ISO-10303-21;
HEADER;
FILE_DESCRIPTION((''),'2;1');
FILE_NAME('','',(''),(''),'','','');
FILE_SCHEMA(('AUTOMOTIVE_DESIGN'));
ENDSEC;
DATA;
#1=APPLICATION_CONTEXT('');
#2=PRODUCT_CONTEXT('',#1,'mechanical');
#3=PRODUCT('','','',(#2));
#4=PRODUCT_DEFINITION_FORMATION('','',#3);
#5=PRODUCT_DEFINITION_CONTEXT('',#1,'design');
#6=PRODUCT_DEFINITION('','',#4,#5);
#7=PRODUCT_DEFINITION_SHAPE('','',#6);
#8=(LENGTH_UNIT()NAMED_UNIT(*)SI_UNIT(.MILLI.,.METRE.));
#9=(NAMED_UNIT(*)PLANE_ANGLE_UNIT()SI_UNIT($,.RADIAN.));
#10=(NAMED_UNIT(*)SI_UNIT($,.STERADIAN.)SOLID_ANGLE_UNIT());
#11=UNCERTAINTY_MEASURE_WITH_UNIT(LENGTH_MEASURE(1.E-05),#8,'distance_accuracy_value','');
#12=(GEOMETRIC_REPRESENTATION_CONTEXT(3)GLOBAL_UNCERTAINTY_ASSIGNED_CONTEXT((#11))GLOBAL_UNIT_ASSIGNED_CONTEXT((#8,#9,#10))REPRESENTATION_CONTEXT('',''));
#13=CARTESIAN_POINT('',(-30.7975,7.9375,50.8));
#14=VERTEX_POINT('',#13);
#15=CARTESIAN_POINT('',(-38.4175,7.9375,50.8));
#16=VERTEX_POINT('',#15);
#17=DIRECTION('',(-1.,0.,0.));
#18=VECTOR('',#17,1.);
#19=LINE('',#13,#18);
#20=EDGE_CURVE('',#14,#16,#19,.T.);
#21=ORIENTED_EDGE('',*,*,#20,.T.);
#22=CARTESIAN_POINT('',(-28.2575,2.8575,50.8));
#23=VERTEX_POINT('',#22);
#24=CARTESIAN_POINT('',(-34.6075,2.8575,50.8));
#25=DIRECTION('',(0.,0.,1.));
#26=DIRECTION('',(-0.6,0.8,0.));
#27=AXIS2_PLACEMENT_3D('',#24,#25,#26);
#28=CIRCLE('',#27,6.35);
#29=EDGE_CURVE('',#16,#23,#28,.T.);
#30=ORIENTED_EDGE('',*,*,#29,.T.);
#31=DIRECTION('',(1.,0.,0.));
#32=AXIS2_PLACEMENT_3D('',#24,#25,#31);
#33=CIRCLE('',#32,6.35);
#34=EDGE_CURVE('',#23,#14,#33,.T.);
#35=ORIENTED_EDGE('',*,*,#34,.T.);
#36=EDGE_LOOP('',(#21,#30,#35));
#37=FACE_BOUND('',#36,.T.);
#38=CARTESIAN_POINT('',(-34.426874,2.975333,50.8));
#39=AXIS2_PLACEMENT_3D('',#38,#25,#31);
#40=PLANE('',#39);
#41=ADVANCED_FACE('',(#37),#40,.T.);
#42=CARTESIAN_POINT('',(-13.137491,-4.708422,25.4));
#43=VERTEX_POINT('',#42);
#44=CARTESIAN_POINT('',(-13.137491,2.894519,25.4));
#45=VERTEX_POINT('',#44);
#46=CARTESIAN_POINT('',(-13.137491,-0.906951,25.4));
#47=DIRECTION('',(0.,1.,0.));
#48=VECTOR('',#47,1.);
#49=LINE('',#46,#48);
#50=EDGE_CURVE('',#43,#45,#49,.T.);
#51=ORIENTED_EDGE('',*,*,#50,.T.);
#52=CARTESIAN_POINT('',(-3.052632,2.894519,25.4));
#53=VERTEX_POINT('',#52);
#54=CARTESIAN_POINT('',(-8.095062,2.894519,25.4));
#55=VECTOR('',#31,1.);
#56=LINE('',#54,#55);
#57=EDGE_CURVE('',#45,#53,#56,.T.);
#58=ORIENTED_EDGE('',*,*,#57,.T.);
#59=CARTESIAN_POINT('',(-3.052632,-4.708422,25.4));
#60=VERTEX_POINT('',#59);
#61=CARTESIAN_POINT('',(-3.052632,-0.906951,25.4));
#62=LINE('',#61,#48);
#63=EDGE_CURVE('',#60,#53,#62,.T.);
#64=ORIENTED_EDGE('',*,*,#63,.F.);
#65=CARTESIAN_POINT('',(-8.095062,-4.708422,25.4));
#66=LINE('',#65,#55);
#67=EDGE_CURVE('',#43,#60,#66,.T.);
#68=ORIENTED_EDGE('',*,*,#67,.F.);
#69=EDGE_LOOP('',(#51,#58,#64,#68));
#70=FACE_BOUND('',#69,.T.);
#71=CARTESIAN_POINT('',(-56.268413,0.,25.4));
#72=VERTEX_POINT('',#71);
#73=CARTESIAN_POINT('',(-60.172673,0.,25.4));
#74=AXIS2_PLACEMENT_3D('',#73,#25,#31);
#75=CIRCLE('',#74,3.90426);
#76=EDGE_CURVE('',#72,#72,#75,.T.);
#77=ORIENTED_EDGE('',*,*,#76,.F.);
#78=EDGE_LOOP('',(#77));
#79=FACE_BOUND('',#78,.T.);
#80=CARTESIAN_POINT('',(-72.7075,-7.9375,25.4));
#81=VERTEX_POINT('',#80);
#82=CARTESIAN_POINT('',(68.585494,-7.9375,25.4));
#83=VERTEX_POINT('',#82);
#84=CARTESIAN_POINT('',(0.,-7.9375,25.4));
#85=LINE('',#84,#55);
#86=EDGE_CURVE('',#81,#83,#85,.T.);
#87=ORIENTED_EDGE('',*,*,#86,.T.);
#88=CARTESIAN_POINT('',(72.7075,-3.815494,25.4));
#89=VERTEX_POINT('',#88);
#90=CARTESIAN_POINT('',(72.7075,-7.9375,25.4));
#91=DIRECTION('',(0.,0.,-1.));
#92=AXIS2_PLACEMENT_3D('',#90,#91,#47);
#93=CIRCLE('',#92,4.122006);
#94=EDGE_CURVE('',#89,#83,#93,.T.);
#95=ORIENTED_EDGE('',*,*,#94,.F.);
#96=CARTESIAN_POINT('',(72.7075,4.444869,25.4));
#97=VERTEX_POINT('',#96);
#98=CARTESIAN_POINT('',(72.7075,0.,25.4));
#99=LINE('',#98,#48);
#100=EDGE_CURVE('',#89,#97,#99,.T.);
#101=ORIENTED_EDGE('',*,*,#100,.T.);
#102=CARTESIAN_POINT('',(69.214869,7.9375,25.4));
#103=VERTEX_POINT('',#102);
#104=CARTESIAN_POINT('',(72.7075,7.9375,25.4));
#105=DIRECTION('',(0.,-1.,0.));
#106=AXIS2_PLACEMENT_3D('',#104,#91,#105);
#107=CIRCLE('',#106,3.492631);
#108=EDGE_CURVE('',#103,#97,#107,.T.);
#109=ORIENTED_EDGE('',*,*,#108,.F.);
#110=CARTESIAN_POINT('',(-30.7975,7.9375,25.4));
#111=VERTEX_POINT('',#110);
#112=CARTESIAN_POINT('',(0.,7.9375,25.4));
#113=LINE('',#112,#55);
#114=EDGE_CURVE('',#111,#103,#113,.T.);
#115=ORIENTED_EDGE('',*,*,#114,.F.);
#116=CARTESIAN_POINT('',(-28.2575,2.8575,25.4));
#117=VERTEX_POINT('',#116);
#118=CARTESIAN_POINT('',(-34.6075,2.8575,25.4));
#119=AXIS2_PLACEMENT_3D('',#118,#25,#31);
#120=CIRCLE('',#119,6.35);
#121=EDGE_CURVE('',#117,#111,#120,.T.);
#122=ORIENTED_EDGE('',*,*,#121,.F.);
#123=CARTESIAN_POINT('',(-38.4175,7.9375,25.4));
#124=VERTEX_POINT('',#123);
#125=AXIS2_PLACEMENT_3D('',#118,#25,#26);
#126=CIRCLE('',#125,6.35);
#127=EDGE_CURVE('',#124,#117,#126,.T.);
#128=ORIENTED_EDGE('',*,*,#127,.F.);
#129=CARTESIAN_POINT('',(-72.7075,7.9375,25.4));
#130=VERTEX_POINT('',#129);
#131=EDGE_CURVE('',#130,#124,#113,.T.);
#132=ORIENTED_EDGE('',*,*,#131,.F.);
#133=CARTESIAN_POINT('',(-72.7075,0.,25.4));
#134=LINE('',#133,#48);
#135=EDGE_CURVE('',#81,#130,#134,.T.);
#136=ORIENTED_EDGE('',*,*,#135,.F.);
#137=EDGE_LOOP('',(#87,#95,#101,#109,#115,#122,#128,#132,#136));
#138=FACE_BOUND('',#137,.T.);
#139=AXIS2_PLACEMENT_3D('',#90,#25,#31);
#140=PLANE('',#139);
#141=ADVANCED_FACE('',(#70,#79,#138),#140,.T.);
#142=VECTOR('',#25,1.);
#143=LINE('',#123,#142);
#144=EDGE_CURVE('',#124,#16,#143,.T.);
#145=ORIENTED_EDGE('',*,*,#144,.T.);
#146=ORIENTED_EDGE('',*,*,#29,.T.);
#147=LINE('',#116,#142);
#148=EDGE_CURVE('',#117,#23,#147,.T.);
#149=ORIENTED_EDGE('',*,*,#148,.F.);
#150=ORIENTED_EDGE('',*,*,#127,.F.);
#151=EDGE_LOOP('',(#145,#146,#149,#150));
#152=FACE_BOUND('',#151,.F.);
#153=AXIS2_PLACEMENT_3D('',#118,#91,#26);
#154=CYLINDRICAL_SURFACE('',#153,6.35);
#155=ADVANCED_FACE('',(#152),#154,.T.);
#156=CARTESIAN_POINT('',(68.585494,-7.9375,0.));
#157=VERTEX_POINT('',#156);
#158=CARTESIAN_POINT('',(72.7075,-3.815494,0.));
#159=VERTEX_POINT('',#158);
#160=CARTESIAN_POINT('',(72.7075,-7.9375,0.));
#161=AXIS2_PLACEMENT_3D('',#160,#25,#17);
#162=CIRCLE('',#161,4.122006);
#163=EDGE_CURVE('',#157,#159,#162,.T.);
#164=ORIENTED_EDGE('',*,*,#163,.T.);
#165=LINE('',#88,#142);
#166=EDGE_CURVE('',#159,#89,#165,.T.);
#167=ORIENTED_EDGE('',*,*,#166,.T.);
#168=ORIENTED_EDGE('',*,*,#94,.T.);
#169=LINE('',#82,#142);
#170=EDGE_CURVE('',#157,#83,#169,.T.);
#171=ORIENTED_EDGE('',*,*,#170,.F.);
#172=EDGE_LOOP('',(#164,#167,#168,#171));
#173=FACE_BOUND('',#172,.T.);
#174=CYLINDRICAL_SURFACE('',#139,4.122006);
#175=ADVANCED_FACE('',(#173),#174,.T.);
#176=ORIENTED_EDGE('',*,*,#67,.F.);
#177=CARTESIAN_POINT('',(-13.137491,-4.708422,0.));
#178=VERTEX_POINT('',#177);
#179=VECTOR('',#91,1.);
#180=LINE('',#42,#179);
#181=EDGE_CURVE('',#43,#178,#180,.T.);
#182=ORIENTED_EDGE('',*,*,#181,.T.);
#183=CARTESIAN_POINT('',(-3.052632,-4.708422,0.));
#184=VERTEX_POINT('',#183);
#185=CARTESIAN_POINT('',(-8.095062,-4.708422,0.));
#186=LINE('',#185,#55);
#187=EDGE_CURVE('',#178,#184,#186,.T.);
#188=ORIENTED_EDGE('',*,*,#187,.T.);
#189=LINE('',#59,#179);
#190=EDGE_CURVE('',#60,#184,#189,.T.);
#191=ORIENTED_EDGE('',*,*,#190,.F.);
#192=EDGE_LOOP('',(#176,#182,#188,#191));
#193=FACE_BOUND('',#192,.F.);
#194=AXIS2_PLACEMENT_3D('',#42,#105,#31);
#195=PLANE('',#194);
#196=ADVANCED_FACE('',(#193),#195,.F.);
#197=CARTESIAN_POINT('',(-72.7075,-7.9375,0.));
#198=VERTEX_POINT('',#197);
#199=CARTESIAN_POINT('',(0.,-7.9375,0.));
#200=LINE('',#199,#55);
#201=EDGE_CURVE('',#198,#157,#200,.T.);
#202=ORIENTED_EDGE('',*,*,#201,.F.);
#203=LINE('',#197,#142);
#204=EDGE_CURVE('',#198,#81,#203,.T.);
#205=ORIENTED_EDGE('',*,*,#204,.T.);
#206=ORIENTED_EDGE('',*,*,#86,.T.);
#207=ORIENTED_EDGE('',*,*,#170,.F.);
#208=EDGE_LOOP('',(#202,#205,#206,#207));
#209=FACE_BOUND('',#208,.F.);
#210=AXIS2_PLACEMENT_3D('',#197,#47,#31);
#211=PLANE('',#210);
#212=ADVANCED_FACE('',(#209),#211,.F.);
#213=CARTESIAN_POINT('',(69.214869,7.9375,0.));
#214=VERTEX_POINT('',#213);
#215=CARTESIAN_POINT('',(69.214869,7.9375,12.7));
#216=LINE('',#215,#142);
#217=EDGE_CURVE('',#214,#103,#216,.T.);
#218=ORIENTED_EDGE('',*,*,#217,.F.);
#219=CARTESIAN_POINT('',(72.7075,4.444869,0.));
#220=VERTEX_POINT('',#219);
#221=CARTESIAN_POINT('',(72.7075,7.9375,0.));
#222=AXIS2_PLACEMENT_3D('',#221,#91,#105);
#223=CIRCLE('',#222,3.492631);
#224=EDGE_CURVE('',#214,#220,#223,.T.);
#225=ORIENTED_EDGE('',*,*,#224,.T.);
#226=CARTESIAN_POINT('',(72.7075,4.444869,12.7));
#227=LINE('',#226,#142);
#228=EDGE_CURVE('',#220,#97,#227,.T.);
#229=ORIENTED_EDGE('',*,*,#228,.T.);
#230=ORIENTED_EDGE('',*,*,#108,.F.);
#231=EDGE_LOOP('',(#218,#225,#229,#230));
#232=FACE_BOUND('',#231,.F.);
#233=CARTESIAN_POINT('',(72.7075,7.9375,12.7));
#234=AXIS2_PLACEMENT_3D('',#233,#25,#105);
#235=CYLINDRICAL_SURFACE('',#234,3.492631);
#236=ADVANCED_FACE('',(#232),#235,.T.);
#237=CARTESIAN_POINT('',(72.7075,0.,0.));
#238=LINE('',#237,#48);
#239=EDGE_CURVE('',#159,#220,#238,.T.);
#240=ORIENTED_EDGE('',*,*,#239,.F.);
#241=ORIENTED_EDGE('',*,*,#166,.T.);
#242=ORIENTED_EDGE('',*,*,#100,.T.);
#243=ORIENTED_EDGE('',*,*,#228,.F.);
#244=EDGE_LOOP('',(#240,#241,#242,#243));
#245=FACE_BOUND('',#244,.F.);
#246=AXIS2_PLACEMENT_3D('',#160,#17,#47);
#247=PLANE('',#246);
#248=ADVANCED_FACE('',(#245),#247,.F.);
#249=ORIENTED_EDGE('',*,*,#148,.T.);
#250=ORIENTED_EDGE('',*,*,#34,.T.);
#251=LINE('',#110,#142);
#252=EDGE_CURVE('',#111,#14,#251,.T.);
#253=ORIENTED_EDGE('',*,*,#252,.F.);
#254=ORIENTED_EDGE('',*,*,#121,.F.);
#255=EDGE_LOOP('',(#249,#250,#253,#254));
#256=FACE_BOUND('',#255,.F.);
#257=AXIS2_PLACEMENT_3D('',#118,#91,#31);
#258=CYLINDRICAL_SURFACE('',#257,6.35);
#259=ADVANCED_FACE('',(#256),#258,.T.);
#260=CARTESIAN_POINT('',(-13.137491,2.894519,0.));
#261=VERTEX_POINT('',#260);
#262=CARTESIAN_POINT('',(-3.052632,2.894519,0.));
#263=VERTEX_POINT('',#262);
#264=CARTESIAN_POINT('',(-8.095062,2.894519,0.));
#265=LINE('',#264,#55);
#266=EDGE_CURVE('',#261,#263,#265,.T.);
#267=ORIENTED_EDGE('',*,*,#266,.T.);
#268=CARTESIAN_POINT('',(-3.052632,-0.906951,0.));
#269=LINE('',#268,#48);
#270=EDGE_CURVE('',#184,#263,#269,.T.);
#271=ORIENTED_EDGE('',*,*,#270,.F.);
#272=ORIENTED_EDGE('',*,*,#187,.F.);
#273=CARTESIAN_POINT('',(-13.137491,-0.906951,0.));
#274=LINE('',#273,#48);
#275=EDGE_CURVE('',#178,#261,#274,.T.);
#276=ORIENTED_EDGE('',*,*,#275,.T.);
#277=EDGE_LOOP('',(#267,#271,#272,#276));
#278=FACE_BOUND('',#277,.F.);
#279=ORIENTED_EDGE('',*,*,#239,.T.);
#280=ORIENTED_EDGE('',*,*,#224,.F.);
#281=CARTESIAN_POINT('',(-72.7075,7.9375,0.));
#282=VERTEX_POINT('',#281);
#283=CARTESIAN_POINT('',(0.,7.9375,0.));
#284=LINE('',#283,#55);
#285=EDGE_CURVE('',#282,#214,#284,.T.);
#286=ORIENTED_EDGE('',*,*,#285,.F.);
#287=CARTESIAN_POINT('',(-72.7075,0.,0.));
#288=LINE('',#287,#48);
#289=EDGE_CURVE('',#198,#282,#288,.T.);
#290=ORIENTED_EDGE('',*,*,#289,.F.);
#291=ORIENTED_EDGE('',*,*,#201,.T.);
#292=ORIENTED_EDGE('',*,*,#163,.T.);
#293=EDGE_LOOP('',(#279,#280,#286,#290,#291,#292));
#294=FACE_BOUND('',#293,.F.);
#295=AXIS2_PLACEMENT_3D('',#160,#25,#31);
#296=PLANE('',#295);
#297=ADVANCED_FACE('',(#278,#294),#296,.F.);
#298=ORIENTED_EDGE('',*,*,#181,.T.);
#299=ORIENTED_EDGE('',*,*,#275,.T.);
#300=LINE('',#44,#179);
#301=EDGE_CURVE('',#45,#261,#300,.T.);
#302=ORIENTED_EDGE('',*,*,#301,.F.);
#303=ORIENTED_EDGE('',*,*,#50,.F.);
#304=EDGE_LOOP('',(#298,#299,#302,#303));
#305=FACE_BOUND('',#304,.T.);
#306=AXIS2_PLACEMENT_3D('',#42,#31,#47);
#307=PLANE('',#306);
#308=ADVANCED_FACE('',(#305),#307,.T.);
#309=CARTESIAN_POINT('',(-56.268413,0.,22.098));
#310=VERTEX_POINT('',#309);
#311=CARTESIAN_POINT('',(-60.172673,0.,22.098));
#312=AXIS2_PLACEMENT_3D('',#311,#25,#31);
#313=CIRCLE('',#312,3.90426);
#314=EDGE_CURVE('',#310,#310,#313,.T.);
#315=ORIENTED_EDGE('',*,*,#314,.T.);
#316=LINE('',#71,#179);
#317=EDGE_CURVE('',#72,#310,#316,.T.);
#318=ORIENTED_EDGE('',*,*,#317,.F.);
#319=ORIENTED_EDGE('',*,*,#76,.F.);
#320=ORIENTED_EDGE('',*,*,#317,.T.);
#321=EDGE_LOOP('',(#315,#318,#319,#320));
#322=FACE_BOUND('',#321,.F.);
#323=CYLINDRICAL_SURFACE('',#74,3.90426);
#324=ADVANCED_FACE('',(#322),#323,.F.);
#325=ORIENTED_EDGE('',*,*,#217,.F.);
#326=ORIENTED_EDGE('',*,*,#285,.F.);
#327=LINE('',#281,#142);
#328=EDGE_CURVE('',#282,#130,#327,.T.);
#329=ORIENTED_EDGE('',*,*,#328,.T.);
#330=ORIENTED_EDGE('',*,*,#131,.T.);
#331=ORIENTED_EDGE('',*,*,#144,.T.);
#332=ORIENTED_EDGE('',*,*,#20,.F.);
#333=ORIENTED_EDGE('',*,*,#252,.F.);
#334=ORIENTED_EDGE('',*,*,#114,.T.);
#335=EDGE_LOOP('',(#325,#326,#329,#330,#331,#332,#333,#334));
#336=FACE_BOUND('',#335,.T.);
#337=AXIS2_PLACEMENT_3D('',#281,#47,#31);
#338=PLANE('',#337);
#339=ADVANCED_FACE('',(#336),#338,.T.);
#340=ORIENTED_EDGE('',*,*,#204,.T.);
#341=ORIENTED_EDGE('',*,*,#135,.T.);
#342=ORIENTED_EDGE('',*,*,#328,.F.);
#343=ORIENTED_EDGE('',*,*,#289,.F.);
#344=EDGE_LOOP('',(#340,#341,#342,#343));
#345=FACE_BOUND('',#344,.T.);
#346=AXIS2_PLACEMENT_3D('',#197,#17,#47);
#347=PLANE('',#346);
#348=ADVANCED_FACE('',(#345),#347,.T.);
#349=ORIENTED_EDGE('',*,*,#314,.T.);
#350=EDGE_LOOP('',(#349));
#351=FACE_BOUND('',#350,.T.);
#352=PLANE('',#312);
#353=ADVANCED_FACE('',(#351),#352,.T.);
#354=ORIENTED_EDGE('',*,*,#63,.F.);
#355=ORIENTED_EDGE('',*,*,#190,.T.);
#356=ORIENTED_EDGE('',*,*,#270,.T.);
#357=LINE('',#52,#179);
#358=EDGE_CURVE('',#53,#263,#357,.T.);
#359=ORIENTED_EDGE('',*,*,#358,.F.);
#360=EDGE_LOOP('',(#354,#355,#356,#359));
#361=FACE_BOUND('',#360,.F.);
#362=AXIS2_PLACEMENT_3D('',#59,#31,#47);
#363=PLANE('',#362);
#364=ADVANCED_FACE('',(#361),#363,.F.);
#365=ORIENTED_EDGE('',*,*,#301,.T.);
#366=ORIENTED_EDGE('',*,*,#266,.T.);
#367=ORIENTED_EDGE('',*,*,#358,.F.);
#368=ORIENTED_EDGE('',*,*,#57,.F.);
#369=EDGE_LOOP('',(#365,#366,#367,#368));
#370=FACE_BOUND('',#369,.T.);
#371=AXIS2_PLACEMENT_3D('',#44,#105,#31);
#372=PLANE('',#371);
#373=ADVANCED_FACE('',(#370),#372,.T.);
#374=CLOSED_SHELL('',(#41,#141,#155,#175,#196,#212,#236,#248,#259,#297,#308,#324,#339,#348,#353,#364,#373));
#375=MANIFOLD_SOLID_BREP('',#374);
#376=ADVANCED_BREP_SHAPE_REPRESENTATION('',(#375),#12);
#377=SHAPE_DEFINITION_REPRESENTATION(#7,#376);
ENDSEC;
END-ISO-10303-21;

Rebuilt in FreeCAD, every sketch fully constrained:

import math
import FreeCAD as App
import Part
import Sketcher

V = App.Vector
Q = App.Units.Quantity


def add_polygon(sketch, points):
    """Adds a closed chain of lines whose ends are joined by coincident constraints."""
    first, n = sketch.GeometryCount, len(points)
    for a, b in zip(points, points[1:] + points[:1]):
        sketch.addGeometry(Part.LineSegment(App.Vector(*a, 0), App.Vector(*b, 0)), False)
    for i in range(n):
        sketch.addConstraint(Sketcher.Constraint("Coincident", first + i, 2, first + (i + 1) % n, 1))

doc = App.newDocument("Part")
body = doc.addObject("PartDesign::Body", "Body")

# Sketch on XY plane
sketch1 = body.newObject("Sketcher::SketchObject", "Sketch")
sketch1.AttachmentSupport = (doc.getObject("XY_Plane"), [""])
sketch1.MapMode = "FlatFace"
add_polygon(sketch1, [(-72.7075, 7.9375), (-72.7075, -7.9375), (72.7075, -7.9375), (72.7075, 7.9375)])  # lines 0-3
sketch1.addConstraint(Sketcher.Constraint("Vertical", 0))
sketch1.addConstraint(Sketcher.Constraint("Horizontal", 1))
sketch1.addConstraint(Sketcher.Constraint("Vertical", 2))
sketch1.addConstraint(Sketcher.Constraint("Horizontal", 3))
sketch1.addConstraint(Sketcher.Constraint("Symmetric", 0, 2, 2, 2, -1, 1))
sketch1.addConstraint(Sketcher.Constraint("DistanceX", 1, 1, 1, 2, Q("5.725 in")))
sketch1.addConstraint(Sketcher.Constraint("DistanceY", 0, 2, 0, 1, Q("0.625 in")))
pad1 = body.newObject("PartDesign::Pad", "Pad")
pad1.Profile = sketch1
pad1.Length = Q("1 in")

# Sketch on XY plane
sketch2 = body.newObject("Sketcher::SketchObject", "Sketch001")
sketch2.AttachmentSupport = (doc.getObject("XY_Plane"), [""])
sketch2.MapMode = "FlatFace"
sketch2.AttachmentOffset = App.Placement(V(0, 0, 1 * 25.4), App.Rotation())
sketch2.addGeometry(Part.ArcOfCircle(Part.Circle(V(-34.6075, 2.8575, 0), V(0, 0, 1), 6.35), math.radians(126.869898), math.radians(360)), False)
sketch2.addGeometry(Part.ArcOfCircle(Part.Circle(V(-34.6075, 2.8575, 0), V(0, 0, 1), 6.35), math.radians(0), math.radians(53.130102)), False)
sketch2.addGeometry(Part.LineSegment(V(-30.7975, 7.9375, 0), V(-38.4175, 7.9375, 0)), False)
sketch2.addConstraint(Sketcher.Constraint("Tangent", 0, 2, 1, 1))
sketch2.addConstraint(Sketcher.Constraint("Coincident", 1, 2, 2, 1))
sketch2.addConstraint(Sketcher.Constraint("Coincident", 2, 2, 0, 1))
sketch2.addConstraint(Sketcher.Constraint("Horizontal", 2))
sketch2.addConstraint(Sketcher.Constraint("Equal", 0, 1))
sketch2.addConstraint(Sketcher.Constraint("Horizontal", 1, 3, 0, 2))
sketch2.addConstraint(Sketcher.Constraint("Radius", 0, Q("0.25 in")))
sketch2.addConstraint(Sketcher.Constraint("DistanceX", 2, 2, 2, 1, Q("0.3 in")))
sketch2.addConstraint(Sketcher.Constraint("DistanceY", -1, 1, 1, 2, Q("0.3125 in")))
sketch2.addConstraint(Sketcher.Constraint("DistanceX", 0, 3, -1, 1, Q("1.3625 in")))
pad2 = body.newObject("PartDesign::Pad", "Pad001")
pad2.Profile = sketch2
pad2.Length = Q("1 in")

# Sketch on XY plane
sketch3 = body.newObject("Sketcher::SketchObject", "Sketch002")
sketch3.AttachmentSupport = (doc.getObject("XY_Plane"), [""])
sketch3.MapMode = "FlatFace"
sketch3.AttachmentOffset = App.Placement(V(0, 0, 1 * 25.4), App.Rotation())
sketch3.addGeometry(Part.Circle(V(-60.172673, 0, 0), V(0, 0, 1), 3.90426), False)
sketch3.addConstraint(Sketcher.Constraint("PointOnObject", 0, 3, -1))
sketch3.addConstraint(Sketcher.Constraint("Diameter", 0, Q("7.80852 mm")))
sketch3.addConstraint(Sketcher.Constraint("DistanceX", 0, 3, -1, 1, Q("60.172673 mm")))
pocket1 = body.newObject("PartDesign::Pocket", "Pocket")
pocket1.Profile = sketch3
pocket1.Length = Q("0.13 in")

# Sketch on XY plane
sketch4 = body.newObject("Sketcher::SketchObject", "Sketch003")
sketch4.AttachmentSupport = (doc.getObject("XY_Plane"), [""])
sketch4.MapMode = "FlatFace"
sketch4.AttachmentOffset = App.Placement(V(0, 0, 1 * 25.4), App.Rotation())
add_polygon(sketch4, [(-13.137491, 2.894519), (-13.137491, -4.708422), (-3.052632, -4.708422), (-3.052632, 2.894519)])  # lines 0-3
sketch4.addConstraint(Sketcher.Constraint("Vertical", 0))
sketch4.addConstraint(Sketcher.Constraint("Horizontal", 1))
sketch4.addConstraint(Sketcher.Constraint("Vertical", 2))
sketch4.addConstraint(Sketcher.Constraint("Horizontal", 3))
sketch4.addConstraint(Sketcher.Constraint("DistanceX", 1, 1, 1, 2, Q("10.084859 mm")))
sketch4.addConstraint(Sketcher.Constraint("DistanceY", 0, 2, 0, 1, Q("7.602941 mm")))
sketch4.addConstraint(Sketcher.Constraint("DistanceX", 0, 2, -1, 1, Q("13.137491 mm")))
sketch4.addConstraint(Sketcher.Constraint("DistanceY", 0, 2, -1, 1, Q("4.708422 mm")))
pocket2 = body.newObject("PartDesign::Pocket", "Pocket001")
pocket2.Profile = sketch4
pocket2.Type = "ThroughAll"

# Sketch on YZ plane
sketch5 = body.newObject("Sketcher::SketchObject", "Sketch004")
sketch5.AttachmentSupport = (doc.getObject("YZ_Plane"), [""])
sketch5.MapMode = "FlatFace"
sketch5.AttachmentOffset = App.Placement(V(0, 0, 2.8625 * 25.4), App.Rotation())
add_polygon(sketch5, [(4.444869, 25.4), (4.444869, 0), (7.9375, 0), (7.9375, 25.4)])  # lines 0-3
sketch5.addGeometry(Part.LineSegment(V(7.9375, 25.4, 0), V(7.9375, 0, 0)), True)  # axis
sketch5.addConstraint(Sketcher.Constraint("Vertical", 0))
sketch5.addConstraint(Sketcher.Constraint("Horizontal", 1))
sketch5.addConstraint(Sketcher.Constraint("Vertical", 2))
sketch5.addConstraint(Sketcher.Constraint("Horizontal", 3))
sketch5.addConstraint(Sketcher.Constraint("Vertical", 4))
sketch5.addConstraint(Sketcher.Constraint("Coincident", 4, 1, 2, 2))
sketch5.addConstraint(Sketcher.Constraint("PointOnObject", 0, 2, -1))
sketch5.addConstraint(Sketcher.Constraint("PointOnObject", 4, 2, -1))
sketch5.addConstraint(Sketcher.Constraint("DistanceY", 0, 2, 0, 1, Q("1 in")))
sketch5.addConstraint(Sketcher.Constraint("DistanceX", -1, 1, 1, 2, Q("0.3125 in")))
sketch5.addConstraint(Sketcher.Constraint("DistanceX", 1, 1, 1, 2, Q("3.492631 mm")))
revolution = body.newObject("PartDesign::Revolution", "Revolution")
revolution.Profile = sketch5
revolution.ReferenceAxis = (sketch5, ["Axis0"])
revolution.Angle = 360

# Sketch on XY plane
sketch6 = body.newObject("Sketcher::SketchObject", "Sketch005")
sketch6.AttachmentSupport = (doc.getObject("XY_Plane"), [""])
sketch6.MapMode = "FlatFace"
sketch6.AttachmentOffset = App.Placement(V(0, 0, 1 * 25.4), App.Rotation())
sketch6.addGeometry(Part.Circle(V(72.7075, -7.9375, 0), V(0, 0, 1), 4.122006), False)
sketch6.addConstraint(Sketcher.Constraint("DistanceY", 0, 3, -1, 1, Q("0.3125 in")))
sketch6.addConstraint(Sketcher.Constraint("Diameter", 0, Q("8.244013 mm")))
sketch6.addConstraint(Sketcher.Constraint("DistanceX", -1, 1, 0, 3, Q("2.8625 in")))
pad3 = body.newObject("PartDesign::Pad", "Pad002")
pad3.Profile = sketch6
pad3.Type = "UpToLast"
pad3.Reversed = True

doc.recompute()
